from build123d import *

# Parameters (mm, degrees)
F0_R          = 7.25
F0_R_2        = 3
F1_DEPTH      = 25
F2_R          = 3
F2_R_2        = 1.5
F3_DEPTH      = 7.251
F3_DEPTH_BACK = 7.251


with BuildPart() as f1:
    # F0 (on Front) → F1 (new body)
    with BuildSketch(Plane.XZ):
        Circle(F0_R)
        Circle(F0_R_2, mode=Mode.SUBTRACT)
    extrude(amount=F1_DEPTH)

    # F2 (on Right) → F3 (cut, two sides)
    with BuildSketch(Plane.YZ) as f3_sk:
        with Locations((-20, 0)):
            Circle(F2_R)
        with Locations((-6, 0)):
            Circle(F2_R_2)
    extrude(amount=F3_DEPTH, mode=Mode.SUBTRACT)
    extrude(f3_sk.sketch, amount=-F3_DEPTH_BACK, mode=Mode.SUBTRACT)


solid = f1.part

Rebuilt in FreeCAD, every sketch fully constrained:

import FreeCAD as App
import Part
import Sketcher

V = App.Vector

doc = App.newDocument("Part")
body = doc.addObject("PartDesign::Body", "Body")

sketch1 = body.newObject("Sketcher::SketchObject", "Sketch")
sketch1.AttachmentSupport = (doc.getObject("XZ_Plane"), [""])
sketch1.MapMode = "FlatFace"
sketch1.addGeometry([
    Part.Circle(V(0, 0, 0), V(0, 0, 1), 7.2),
    Part.Circle(V(0, 0, 0), V(0, 0, 1), 3),
], False)
sketch1.addConstraint([
    Sketcher.Constraint("Coincident", 0, 3, -1, 1),
    Sketcher.Constraint("Coincident", 1, 3, -1, 1),
    Sketcher.Constraint("Diameter", 1, 6.0),
    Sketcher.Constraint("Diameter", 0, 14.5),
])
pad1 = body.newObject("PartDesign::Pad", "Pad")
pad1.Profile = sketch1
pad1.Length = 25

sketch2 = body.newObject("Sketcher::SketchObject", "Sketch001")
sketch2.AttachmentSupport = (doc.getObject("YZ_Plane"), [""])
sketch2.MapMode = "FlatFace"
sketch2.addGeometry([
    Part.Circle(V(-20, 0, 0), V(0, 0, 1), 3),
    Part.Circle(V(-6, 0, 0), V(0, 0, 1), 1.5),
], False)
sketch2.addConstraint([
    Sketcher.Constraint("PointOnObject", 0, 3, -1),
    Sketcher.Constraint("PointOnObject", 1, 3, -1),
    Sketcher.Constraint("Diameter", 0, 6.0),
    Sketcher.Constraint("Diameter", 1, 3.0),
    Sketcher.Constraint("DistanceX", 0, 3, -1, 1, 20.0),
    Sketcher.Constraint("DistanceX", 1, 3, -1, 1, 6.0),
])
pocket1 = body.newObject("PartDesign::Pocket", "Pocket")
pocket1.Profile = sketch2
pocket1.Type = "ThroughAll"
pocket1.Midplane = True

doc.recompute()
